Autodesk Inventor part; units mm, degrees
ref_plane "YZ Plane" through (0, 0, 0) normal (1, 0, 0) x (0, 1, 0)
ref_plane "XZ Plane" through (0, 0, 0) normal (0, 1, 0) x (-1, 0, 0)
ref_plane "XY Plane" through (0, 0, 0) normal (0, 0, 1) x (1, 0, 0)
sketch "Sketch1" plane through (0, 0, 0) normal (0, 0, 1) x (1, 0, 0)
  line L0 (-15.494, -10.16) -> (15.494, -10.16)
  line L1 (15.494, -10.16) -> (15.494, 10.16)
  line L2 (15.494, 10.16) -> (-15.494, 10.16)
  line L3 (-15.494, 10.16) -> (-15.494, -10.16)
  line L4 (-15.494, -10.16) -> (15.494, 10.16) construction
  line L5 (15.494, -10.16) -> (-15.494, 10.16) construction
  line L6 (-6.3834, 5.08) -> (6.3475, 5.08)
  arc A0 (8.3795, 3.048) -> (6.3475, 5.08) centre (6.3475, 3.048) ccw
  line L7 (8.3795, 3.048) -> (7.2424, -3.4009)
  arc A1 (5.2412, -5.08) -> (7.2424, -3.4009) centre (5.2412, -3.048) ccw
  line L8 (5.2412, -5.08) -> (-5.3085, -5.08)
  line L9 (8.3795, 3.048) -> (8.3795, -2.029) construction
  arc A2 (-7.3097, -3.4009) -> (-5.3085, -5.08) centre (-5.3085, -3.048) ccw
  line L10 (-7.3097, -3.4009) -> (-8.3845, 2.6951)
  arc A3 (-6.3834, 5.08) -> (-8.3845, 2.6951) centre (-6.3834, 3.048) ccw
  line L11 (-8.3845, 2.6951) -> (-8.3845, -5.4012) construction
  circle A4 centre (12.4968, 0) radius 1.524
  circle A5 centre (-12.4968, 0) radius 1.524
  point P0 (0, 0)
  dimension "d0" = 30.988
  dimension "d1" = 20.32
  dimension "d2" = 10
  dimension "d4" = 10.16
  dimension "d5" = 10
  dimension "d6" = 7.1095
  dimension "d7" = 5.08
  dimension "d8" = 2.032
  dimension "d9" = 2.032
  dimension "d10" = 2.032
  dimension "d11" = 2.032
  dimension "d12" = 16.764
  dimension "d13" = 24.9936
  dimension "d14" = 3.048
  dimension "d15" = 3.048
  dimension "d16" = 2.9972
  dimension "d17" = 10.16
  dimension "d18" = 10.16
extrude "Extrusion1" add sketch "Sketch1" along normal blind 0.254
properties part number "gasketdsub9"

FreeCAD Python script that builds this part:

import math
import FreeCAD as App
import Part
import Sketcher
Q = App.Units.Quantity


def add_polygon(sketch, points):
    """Adds a closed chain of lines whose ends are joined by coincident constraints."""
    first, n = sketch.GeometryCount, len(points)
    for a, b in zip(points, points[1:] + points[:1]):
        sketch.addGeometry(Part.LineSegment(App.Vector(*a, 0), App.Vector(*b, 0)), False)
    for i in range(n):
        sketch.addConstraint(Sketcher.Constraint("Coincident", first + i, 2, first + (i + 1) % n, 1))

doc = App.newDocument("Part")
params = doc.addObject("Spreadsheet::Sheet", "Params")
for row, (alias, value) in enumerate([
    ("sketch1_diameter", "0.12 in"),
    ("sketch1_radius", "0.08 in"),
    ("sketch1_height", "0.8 in"),
    ("sketch1_width", "1.22 in"),
    ("pad1_length", "0.01 in"),
], start=1):
    params.set(f"A{row}", alias)
    params.set(f"B{row}", "=" + value)
    params.setAlias(f"B{row}", alias)

body = doc.addObject("PartDesign::Body", "Body")

# Sketch on XY plane
sketch1 = body.newObject("Sketcher::SketchObject", "Sketch")
sketch1.AttachmentSupport = (doc.getObject("XY_Plane"), [""])
sketch1.MapMode = "FlatFace"
add_polygon(sketch1, [(-15.5, 10.2), (-15.5, -10.2), (15.5, -10.2), (15.5, 10.2)])  # lines 0-3
sketch1.addGeometry(Part.Circle(App.Vector(-12.5, 0, 0), App.Vector(0, 0, 1), 1.5), False)  # 4
sketch1.addGeometry(Part.ArcOfCircle(Part.Circle(App.Vector(-6.4, 3, 0), App.Vector(0, 0, 1), 2), math.radians(90), math.radians(190)), False)  # 5
sketch1.addGeometry(Part.LineSegment(App.Vector(-6.4, 5.1, 0), App.Vector(6.3, 5.1, 0)), False)  # 6
sketch1.addGeometry(Part.ArcOfCircle(Part.Circle(App.Vector(6.3, 3, 0), App.Vector(0, 0, 1), 2), math.radians(0), math.radians(90)), False)  # 7
sketch1.addGeometry(Part.LineSegment(App.Vector(8.4, 3, 0), App.Vector(7.2, -3.4, 0)), False)  # 8
sketch1.addGeometry(Part.ArcOfCircle(Part.Circle(App.Vector(5.2, -3, 0), App.Vector(0, 0, 1), 2), math.radians(-90), math.radians(-10)), False)  # 9
sketch1.addGeometry(Part.LineSegment(App.Vector(5.2, -5.1, 0), App.Vector(-5.3, -5.1, 0)), False)  # 10
sketch1.addGeometry(Part.ArcOfCircle(Part.Circle(App.Vector(-5.3, -3, 0), App.Vector(0, 0, 1), 2), math.radians(-170), math.radians(-90)), False)  # 11
sketch1.addGeometry(Part.LineSegment(App.Vector(-7.3, -3.4, 0), App.Vector(-8.4, 2.7, 0)), False)  # 12
sketch1.addGeometry(Part.Circle(App.Vector(12.5, 0, 0), App.Vector(0, 0, 1), 1.5), False)  # 13
sketch1.addConstraint([
    Sketcher.Constraint("Tangent", 5, 1, 6, 1),
    Sketcher.Constraint("Tangent", 6, 2, 7, 2),
    Sketcher.Constraint("Coincident", 7, 1, 8, 1),
    Sketcher.Constraint("Tangent", 8, 2, 9, 2),
    Sketcher.Constraint("Tangent", 9, 1, 10, 1),
    Sketcher.Constraint("Tangent", 10, 2, 11, 2),
    Sketcher.Constraint("Tangent", 11, 1, 12, 1),
    Sketcher.Constraint("Tangent", 12, 2, 5, 2),
    Sketcher.Constraint("Vertical", 0),
    Sketcher.Constraint("Horizontal", 1),
    Sketcher.Constraint("Vertical", 2),
    Sketcher.Constraint("Horizontal", 3),
    Sketcher.Constraint("Horizontal", 6),
    Sketcher.Constraint("Horizontal", 10),
    Sketcher.Constraint("Equal", 5, 7),
    Sketcher.Constraint("Equal", 7, 9),
    Sketcher.Constraint("Equal", 9, 11),
    Sketcher.Constraint("Equal", 4, 13),
    Sketcher.Constraint("Symmetric", 4, 3, 13, 3, -1, 1),
    Sketcher.Constraint("Symmetric", 0, 2, 2, 2, -1, 1),
    Sketcher.Constraint("PointOnObject", 4, 3, -1),
    Sketcher.Constraint("Horizontal", 5, 3, 7, 1),
    Sketcher.Constraint("Horizontal", 8, 2, 11, 1),
    Sketcher.Constraint("Diameter", 4, Q("0.12 in")),
    Sketcher.Constraint("Radius", 5, Q("0.08 in")),
    Sketcher.Constraint("DistanceY", 0, 2, 0, 1, Q("0.8 in")),
    Sketcher.Constraint("DistanceX", 1, 1, 1, 2, Q("1.22 in")),
    Sketcher.Constraint("DistanceY", -1, 1, 5, 1, Q("0.2 in")),
    Sketcher.Constraint("DistanceY", 9, 1, -1, 1, Q("0.2 in")),
    Sketcher.Constraint("Angle", 8, Q("-99.9999 deg")),
    Sketcher.Constraint("DistanceX", 4, 3, 13, 3, Q("0.984 in")),
    Sketcher.Constraint("DistanceX", 11, 3, -1, 1, Q("0.209 in")),
    Sketcher.Constraint("DistanceX", 6, 1, 6, 2, Q("12.731 mm")),
])
sketch1.setExpression("Constraints[27]", "Params.sketch1_diameter")
sketch1.setExpression("Constraints[28]", "Params.sketch1_radius")
sketch1.setExpression("Constraints[29]", "Params.sketch1_height")
sketch1.setExpression("Constraints[30]", "Params.sketch1_width")
pad1 = body.newObject("PartDesign::Pad", "Pad")
pad1.Profile = sketch1
pad1.setExpression("Length", "Params.pad1_length")

doc.recompute()
